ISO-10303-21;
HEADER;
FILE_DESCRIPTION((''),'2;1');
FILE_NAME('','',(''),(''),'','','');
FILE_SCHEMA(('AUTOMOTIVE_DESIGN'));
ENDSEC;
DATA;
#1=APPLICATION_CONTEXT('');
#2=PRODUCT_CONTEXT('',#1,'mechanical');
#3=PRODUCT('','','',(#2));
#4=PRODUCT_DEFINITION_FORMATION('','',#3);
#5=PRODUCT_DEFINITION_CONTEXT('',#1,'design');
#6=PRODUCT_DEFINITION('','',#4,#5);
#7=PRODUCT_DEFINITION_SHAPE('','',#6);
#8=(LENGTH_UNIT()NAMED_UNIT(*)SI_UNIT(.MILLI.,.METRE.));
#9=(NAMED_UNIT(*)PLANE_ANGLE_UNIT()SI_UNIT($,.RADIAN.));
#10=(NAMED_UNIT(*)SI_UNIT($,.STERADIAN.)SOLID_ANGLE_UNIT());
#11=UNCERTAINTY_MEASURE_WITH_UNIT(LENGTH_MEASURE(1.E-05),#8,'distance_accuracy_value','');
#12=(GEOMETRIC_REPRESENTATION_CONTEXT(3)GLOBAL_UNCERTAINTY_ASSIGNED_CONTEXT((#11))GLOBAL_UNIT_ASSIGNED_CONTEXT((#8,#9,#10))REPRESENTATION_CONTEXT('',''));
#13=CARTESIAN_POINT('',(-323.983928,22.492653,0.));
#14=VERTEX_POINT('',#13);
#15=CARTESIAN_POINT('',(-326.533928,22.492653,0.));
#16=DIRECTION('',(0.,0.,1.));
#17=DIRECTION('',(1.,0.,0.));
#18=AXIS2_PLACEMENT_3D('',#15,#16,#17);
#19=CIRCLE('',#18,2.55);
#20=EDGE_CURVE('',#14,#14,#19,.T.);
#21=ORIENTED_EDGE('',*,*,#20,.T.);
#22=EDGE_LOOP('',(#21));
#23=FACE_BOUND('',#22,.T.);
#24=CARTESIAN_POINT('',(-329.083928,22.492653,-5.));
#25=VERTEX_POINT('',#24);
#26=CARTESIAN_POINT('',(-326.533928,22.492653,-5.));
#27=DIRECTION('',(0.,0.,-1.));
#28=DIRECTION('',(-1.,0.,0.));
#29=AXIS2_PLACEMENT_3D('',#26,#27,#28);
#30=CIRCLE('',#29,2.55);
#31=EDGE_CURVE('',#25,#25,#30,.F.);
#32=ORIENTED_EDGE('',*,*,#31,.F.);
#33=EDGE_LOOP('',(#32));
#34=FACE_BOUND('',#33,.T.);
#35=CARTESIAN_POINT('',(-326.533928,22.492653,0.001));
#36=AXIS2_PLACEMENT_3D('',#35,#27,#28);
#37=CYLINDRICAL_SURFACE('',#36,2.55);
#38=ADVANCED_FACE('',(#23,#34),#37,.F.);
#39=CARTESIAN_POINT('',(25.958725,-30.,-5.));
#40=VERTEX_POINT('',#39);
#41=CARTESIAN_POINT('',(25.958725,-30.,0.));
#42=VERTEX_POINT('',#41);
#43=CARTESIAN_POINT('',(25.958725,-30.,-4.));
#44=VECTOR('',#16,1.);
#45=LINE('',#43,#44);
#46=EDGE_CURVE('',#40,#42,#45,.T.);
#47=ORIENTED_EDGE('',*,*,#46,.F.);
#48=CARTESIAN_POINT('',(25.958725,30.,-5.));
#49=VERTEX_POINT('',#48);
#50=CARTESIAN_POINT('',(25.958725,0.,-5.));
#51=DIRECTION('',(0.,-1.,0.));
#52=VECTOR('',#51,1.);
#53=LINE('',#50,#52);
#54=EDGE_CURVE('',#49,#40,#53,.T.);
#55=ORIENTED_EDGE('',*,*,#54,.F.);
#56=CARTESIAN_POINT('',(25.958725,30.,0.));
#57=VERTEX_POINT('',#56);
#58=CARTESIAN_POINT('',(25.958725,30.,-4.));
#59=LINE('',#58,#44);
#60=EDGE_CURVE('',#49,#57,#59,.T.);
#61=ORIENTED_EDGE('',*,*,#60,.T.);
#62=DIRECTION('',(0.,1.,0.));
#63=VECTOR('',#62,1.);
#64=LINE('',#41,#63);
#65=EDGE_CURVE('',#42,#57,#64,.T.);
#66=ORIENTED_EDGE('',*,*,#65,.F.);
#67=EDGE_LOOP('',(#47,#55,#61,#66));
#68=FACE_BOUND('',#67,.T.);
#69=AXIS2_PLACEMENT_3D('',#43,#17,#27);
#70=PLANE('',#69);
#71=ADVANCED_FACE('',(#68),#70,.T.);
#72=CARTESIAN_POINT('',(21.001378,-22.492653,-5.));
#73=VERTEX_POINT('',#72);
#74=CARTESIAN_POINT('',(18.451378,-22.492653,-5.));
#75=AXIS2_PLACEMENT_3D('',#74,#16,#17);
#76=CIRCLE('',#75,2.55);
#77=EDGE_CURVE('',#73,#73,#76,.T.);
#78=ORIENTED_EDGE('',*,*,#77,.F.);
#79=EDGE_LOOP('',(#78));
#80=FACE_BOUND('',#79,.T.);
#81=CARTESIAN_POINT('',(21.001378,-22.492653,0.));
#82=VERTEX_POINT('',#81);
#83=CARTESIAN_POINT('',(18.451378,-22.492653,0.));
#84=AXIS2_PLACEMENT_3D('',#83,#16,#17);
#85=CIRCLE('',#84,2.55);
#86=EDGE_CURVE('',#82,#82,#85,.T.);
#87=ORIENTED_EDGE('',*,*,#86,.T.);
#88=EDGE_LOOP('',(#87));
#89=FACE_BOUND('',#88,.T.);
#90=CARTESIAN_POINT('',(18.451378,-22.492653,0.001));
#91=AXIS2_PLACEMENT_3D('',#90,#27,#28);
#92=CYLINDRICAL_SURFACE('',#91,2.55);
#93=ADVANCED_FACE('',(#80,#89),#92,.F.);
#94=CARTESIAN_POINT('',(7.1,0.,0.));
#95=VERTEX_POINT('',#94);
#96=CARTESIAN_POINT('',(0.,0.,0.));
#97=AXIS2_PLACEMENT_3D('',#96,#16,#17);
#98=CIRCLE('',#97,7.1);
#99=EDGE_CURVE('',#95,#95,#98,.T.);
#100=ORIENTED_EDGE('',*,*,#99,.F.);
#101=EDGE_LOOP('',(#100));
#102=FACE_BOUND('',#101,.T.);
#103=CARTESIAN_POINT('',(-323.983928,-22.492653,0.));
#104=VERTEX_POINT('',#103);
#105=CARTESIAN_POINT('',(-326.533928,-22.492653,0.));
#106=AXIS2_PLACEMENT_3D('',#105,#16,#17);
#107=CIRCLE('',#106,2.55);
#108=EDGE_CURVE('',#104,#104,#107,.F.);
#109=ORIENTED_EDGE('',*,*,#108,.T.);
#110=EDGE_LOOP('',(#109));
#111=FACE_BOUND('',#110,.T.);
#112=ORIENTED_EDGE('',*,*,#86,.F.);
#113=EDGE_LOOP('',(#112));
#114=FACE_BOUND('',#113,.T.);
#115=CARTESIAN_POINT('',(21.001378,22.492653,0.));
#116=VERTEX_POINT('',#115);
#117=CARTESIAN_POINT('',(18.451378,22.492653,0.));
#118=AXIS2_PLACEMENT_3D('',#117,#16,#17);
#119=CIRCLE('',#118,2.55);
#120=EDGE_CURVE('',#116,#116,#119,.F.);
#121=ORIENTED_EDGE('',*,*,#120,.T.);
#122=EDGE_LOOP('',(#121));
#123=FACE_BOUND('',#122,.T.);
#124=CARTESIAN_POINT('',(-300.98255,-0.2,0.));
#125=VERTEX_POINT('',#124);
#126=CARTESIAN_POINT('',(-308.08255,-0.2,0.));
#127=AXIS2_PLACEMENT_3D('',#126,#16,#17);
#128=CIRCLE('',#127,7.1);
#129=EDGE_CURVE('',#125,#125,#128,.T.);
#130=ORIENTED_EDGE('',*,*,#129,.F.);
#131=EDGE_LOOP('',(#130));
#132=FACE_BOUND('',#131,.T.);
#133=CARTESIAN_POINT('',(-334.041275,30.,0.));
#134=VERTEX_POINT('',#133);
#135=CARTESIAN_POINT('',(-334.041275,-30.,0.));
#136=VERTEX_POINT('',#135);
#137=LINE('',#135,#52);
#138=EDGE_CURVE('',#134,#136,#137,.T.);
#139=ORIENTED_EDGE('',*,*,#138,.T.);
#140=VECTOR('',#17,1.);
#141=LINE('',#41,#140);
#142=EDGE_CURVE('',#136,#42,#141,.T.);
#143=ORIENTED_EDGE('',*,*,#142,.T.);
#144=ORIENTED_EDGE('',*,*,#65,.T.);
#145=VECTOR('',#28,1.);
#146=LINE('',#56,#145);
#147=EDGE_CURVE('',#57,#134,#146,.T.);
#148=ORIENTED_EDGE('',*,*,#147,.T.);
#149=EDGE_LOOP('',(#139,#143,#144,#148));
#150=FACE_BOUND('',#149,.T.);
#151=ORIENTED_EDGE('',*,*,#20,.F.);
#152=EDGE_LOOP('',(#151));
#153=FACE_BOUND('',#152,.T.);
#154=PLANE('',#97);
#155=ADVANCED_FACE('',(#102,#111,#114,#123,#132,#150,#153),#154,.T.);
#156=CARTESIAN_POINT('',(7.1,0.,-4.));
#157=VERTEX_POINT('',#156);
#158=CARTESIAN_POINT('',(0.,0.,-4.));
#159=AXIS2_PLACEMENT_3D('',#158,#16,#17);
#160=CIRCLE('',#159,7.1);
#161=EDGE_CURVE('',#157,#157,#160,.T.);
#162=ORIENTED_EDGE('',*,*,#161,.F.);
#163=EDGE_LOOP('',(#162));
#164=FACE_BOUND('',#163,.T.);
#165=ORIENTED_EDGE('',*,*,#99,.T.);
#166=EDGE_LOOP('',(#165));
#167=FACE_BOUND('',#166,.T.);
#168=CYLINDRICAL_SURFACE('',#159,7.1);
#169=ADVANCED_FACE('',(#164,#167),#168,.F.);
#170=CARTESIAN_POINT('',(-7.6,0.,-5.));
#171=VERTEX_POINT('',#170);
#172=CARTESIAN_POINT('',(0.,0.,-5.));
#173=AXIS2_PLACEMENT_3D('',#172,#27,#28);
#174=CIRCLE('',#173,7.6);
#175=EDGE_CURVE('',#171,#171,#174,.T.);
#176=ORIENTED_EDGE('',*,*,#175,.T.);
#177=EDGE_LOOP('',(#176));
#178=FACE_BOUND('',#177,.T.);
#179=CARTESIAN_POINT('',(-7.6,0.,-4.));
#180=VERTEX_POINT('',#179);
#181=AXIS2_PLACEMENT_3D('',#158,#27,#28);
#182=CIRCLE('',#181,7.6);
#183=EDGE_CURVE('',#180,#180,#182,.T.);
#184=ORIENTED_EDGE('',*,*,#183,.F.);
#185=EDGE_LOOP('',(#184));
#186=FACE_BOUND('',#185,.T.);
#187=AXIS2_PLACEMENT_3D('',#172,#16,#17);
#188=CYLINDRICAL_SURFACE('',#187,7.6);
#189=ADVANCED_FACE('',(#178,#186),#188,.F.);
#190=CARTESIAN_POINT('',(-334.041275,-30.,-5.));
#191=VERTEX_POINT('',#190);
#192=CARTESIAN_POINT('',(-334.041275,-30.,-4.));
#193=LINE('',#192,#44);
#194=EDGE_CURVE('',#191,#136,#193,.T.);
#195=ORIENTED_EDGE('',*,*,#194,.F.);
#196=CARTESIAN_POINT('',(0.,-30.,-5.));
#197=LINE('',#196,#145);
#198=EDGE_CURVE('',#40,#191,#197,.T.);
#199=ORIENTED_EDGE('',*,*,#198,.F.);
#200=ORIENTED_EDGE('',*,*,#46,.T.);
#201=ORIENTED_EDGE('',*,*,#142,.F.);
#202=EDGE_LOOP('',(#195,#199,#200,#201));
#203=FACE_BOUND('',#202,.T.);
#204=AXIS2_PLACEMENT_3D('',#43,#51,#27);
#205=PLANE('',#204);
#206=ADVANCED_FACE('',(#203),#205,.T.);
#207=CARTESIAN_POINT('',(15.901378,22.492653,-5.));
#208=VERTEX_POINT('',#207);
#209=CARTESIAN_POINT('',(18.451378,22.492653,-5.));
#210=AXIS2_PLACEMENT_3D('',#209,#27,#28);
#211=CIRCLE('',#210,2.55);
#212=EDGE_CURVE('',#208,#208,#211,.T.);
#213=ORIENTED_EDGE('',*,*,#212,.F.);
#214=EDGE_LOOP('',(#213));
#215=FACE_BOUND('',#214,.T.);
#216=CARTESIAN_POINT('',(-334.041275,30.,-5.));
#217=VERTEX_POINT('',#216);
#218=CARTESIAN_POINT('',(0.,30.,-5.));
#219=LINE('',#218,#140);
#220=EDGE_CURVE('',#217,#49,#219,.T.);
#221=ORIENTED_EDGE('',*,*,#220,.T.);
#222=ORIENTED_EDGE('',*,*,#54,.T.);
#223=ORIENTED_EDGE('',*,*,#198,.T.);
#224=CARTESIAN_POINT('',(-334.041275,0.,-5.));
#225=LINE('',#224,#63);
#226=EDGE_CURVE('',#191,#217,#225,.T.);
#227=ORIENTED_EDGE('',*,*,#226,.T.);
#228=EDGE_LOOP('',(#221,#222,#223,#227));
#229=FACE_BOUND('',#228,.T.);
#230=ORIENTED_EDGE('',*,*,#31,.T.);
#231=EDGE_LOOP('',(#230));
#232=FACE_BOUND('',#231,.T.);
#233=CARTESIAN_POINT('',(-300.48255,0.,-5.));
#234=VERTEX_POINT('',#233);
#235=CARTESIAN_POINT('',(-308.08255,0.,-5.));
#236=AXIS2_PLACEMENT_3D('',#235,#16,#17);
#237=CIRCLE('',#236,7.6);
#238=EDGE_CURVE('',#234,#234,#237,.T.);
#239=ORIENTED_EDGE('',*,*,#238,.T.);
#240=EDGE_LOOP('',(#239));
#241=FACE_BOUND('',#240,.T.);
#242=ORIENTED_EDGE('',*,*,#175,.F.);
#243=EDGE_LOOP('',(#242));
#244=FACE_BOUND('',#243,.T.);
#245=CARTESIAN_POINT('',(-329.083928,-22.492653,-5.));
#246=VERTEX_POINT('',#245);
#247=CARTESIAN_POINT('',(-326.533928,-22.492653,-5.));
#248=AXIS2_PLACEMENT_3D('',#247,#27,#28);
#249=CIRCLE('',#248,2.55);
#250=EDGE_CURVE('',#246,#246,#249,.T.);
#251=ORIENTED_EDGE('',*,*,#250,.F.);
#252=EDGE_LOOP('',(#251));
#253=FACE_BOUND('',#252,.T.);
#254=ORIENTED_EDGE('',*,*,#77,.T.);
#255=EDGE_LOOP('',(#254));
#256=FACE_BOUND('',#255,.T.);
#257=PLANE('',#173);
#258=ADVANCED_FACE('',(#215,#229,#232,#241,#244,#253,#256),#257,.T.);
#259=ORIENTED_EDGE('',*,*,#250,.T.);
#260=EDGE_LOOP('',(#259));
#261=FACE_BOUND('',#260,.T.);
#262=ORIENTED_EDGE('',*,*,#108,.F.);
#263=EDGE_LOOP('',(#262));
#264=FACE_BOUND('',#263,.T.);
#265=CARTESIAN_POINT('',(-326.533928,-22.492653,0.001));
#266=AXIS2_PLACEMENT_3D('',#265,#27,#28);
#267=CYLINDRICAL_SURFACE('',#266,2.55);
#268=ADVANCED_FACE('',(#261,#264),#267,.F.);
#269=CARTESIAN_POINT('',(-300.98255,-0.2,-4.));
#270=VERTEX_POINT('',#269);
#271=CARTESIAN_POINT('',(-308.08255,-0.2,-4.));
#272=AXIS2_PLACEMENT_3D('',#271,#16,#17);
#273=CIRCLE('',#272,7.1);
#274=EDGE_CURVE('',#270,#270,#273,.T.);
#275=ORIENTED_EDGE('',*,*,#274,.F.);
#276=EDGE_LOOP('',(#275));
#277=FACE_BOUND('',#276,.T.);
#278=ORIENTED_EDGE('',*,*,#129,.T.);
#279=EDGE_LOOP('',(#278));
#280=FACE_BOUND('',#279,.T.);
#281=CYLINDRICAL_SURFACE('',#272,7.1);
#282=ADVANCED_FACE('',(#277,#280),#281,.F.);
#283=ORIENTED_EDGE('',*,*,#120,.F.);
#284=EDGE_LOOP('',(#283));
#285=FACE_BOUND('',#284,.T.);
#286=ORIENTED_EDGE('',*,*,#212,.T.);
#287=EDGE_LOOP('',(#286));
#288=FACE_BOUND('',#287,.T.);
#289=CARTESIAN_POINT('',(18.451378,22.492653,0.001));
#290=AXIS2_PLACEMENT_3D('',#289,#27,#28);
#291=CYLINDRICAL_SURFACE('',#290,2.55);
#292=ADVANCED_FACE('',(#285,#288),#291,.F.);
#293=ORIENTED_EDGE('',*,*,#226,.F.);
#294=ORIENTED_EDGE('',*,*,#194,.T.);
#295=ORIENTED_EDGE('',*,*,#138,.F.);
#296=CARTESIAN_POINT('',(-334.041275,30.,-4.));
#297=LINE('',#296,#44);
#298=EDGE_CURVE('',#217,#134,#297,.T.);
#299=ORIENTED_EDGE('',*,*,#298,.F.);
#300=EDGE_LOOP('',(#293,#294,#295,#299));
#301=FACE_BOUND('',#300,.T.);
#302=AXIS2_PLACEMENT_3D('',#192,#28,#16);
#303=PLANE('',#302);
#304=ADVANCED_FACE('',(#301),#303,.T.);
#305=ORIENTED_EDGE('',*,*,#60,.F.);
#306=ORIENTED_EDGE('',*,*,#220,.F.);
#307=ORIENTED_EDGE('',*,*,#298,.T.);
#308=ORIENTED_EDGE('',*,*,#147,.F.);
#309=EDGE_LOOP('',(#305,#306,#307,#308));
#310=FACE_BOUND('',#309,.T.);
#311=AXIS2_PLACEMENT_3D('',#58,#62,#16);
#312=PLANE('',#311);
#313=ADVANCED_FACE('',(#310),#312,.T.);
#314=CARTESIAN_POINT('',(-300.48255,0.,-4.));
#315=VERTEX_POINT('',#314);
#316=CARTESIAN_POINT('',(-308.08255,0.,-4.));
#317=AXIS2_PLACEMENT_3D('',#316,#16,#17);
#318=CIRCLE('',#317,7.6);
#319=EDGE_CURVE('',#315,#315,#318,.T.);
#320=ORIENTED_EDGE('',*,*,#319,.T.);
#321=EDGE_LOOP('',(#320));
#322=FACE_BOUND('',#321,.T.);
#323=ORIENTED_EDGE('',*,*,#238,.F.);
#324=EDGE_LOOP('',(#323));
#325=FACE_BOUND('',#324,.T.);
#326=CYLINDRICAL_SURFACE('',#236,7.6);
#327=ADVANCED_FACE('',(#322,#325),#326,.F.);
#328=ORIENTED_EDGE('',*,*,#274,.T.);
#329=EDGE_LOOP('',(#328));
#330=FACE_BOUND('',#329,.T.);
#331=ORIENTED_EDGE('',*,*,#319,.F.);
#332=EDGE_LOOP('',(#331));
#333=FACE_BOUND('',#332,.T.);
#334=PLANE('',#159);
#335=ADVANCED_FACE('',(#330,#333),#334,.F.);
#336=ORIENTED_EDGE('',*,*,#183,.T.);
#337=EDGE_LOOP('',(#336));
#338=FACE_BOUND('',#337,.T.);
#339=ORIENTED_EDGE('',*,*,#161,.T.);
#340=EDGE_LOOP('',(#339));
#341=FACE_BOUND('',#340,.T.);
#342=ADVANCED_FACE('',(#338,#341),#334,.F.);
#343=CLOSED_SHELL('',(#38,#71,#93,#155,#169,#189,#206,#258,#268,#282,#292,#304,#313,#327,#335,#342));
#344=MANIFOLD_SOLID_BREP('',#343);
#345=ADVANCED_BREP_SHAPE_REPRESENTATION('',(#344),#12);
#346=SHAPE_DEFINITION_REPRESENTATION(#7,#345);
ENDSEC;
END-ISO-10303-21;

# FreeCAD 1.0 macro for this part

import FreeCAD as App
import Part
import Sketcher

V = App.Vector
Q = App.Units.Quantity

doc = App.newDocument("Part")
params = doc.addObject("Spreadsheet::Sheet", "Params")
for row, (alias, value) in enumerate([
    ("sketch1_diameter", "14.2 mm"),
    ("sketch1_width", "360 mm"),
    ("sketch1_height", "60 mm"),
    ("pad1_length", "4 mm"),
    ("sketch2_diameter", "15.2 mm"),
    ("sketch2_width", "360 mm"),
    ("sketch2_height", "60 mm"),
    ("pad2_length", "1 mm"),
    ("sketch3_diameter", "5.1 mm"),
    ("sketch4_diameter", "5.1 mm"),
    ("sketch5_diameter", "5.1 mm"),
    ("sketch6_diameter", "5.1 mm"),
], start=1):
    params.set(f"A{row}", alias)
    params.set(f"B{row}", "=" + value)
    params.setAlias(f"B{row}", alias)

body = doc.addObject("PartDesign::Body", "Body")

# Sketch on XY plane
sketch1 = doc.addObject("Sketcher::SketchObject", "Sketch")
body.addObject(sketch1)
sketch1.AttachmentSupport = (doc.XY_Plane, [""])
sketch1.MapMode = "FlatFace"
sketch1.addGeometry([
    Part.LineSegment(V(-334, 30, 0), V(-334, -30, 0)),  # 0
    Part.LineSegment(V(-334, -30, 0), V(26, -30, 0)),  # 1
    Part.LineSegment(V(26, -30, 0), V(26, 30, 0)),  # 2
    Part.LineSegment(V(26, 30, 0), V(-334, 30, 0)),  # 3
    Part.Circle(V(-308, 0, 0), V(0, 0, 1), 7),  # 4
    Part.Circle(V(0, 0, 0), V(0, 0, 1), 7),  # 5
], False)
sketch1.addConstraint([
    Sketcher.Constraint("Coincident", 0, 2, 1, 1),
    Sketcher.Constraint("Coincident", 1, 2, 2, 1),
    Sketcher.Constraint("Coincident", 2, 2, 3, 1),
    Sketcher.Constraint("Coincident", 3, 2, 0, 1),
    Sketcher.Constraint("Vertical", 0),
    Sketcher.Constraint("Horizontal", 1),
    Sketcher.Constraint("Vertical", 2),
    Sketcher.Constraint("Horizontal", 3),
    Sketcher.Constraint("Coincident", 5, 3, -1, 1),
    Sketcher.Constraint("Equal", 4, 5),
    Sketcher.Constraint("Diameter", 4, Q("14.2 mm")),
    Sketcher.Constraint("DistanceX", 1, 1, 1, 2, Q("360 mm")),
    Sketcher.Constraint("DistanceY", 0, 2, 0, 1, Q("60 mm")),
    Sketcher.Constraint("DistanceY", 0, 2, -1, 1, Q("30 mm")),
    Sketcher.Constraint("DistanceY", 4, 3, -1, 1, Q("0.2 mm")),
    Sketcher.Constraint("DistanceX", 4, 3, -1, 1, Q("308.08255 mm")),
    Sketcher.Constraint("DistanceX", 0, 2, -1, 1, Q("334.041275 mm")),
])
sketch1.setExpression("Constraints[10]", "Params.sketch1_diameter")
sketch1.setExpression("Constraints[11]", "Params.sketch1_width")
sketch1.setExpression("Constraints[12]", "Params.sketch1_height")
pad1 = doc.addObject("PartDesign::Pad", "Pad")
body.addObject(pad1)
pad1.Profile = sketch1
pad1.setExpression("Length", "Params.pad1_length")
pad1.Reversed = True

# Sketch on XY plane
sketch2 = doc.addObject("Sketcher::SketchObject", "Sketch001")
body.addObject(sketch2)
sketch2.AttachmentSupport = (doc.XY_Plane, [""])
sketch2.MapMode = "FlatFace"
sketch2.AttachmentOffset = App.Placement(V(0, 0, -4), App.Rotation())
sketch2.addGeometry([
    Part.LineSegment(V(26, 30, 0), V(26, -30, 0)),  # 0
    Part.LineSegment(V(26, -30, 0), V(-334, -30, 0)),  # 1
    Part.LineSegment(V(-334, -30, 0), V(-334, 30, 0)),  # 2
    Part.LineSegment(V(-334, 30, 0), V(26, 30, 0)),  # 3
    Part.Circle(V(0, 0, 0), V(0, 0, 1), 8),  # 4
    Part.Circle(V(-308, 0, 0), V(0, 0, 1), 8),  # 5
], False)
sketch2.addConstraint([
    Sketcher.Constraint("Coincident", 0, 2, 1, 1),
    Sketcher.Constraint("Coincident", 1, 2, 2, 1),
    Sketcher.Constraint("Coincident", 2, 2, 3, 1),
    Sketcher.Constraint("Coincident", 3, 2, 0, 1),
    Sketcher.Constraint("Vertical", 0),
    Sketcher.Constraint("Horizontal", 1),
    Sketcher.Constraint("Vertical", 2),
    Sketcher.Constraint("Horizontal", 3),
    Sketcher.Constraint("Coincident", 4, 3, -1, 1),
    Sketcher.Constraint("Equal", 4, 5),
    Sketcher.Constraint("PointOnObject", 5, 3, -1),
    Sketcher.Constraint("Diameter", 4, Q("15.2 mm")),
    Sketcher.Constraint("DistanceX", 1, 2, 1, 1, Q("360 mm")),
    Sketcher.Constraint("DistanceY", 0, 2, 0, 1, Q("60 mm")),
    Sketcher.Constraint("DistanceY", 0, 2, -1, 1, Q("30 mm")),
    Sketcher.Constraint("DistanceX", 5, 3, -1, 1, Q("308.08255 mm")),
    Sketcher.Constraint("DistanceX", -1, 1, 0, 2, Q("25.958725 mm")),
])
sketch2.setExpression("Constraints[11]", "Params.sketch2_diameter")
sketch2.setExpression("Constraints[12]", "Params.sketch2_width")
sketch2.setExpression("Constraints[13]", "Params.sketch2_height")
pad2 = doc.addObject("PartDesign::Pad", "Pad001")
body.addObject(pad2)
pad2.Profile = sketch2
pad2.setExpression("Length", "Params.pad2_length")
pad2.Reversed = True

# Sketch on XY plane
sketch3 = doc.addObject("Sketcher::SketchObject", "Sketch002")
body.addObject(sketch3)
sketch3.AttachmentSupport = (doc.XY_Plane, [""])
sketch3.MapMode = "FlatFace"
sketch3.AttachmentOffset = App.Placement(V(0, 0, -5), App.Rotation())
sketch3.addGeometry(Part.Circle(V(-326.5, -22.5, 0), V(0, 0, 1), 2.5), False)
sketch3.addConstraint([
    Sketcher.Constraint("Diameter", 0, Q("5.1 mm")),
    Sketcher.Constraint("DistanceX", 0, 3, -1, 1, Q("326.533928 mm")),
    Sketcher.Constraint("DistanceY", 0, 3, -1, 1, Q("22.492653 mm")),
])
sketch3.setExpression("Constraints[0]", "Params.sketch3_diameter")
pocket1 = doc.addObject("PartDesign::Pocket", "Pocket")
body.addObject(pocket1)
pocket1.Profile = sketch3
pocket1.Type = "UpToFirst"
pocket1.Reversed = True

# Sketch on XY plane
sketch4 = doc.addObject("Sketcher::SketchObject", "Sketch003")
body.addObject(sketch4)
sketch4.AttachmentSupport = (doc.XY_Plane, [""])
sketch4.MapMode = "FlatFace"
sketch4.AttachmentOffset = App.Placement(V(0, 0, -5), App.Rotation())
sketch4.addGeometry(Part.Circle(V(-326.5, 22.5, 0), V(0, 0, 1), 2.5), False)
sketch4.addConstraint([
    Sketcher.Constraint("Diameter", 0, Q("5.1 mm")),
    Sketcher.Constraint("DistanceX", 0, 3, -1, 1, Q("326.533928 mm")),
    Sketcher.Constraint("DistanceY", -1, 1, 0, 3, Q("22.492653 mm")),
])
sketch4.setExpression("Constraints[0]", "Params.sketch4_diameter")
pocket2 = doc.addObject("PartDesign::Pocket", "Pocket001")
body.addObject(pocket2)
pocket2.Profile = sketch4
pocket2.Type = "UpToFirst"
pocket2.Reversed = True

# Sketch on XY plane
sketch5 = doc.addObject("Sketcher::SketchObject", "Sketch004")
body.addObject(sketch5)
sketch5.AttachmentSupport = (doc.XY_Plane, [""])
sketch5.MapMode = "FlatFace"
sketch5.AttachmentOffset = App.Placement(V(0, 0, -5), App.Rotation())
sketch5.addGeometry(Part.Circle(V(18.5, -22.5, 0), V(0, 0, 1), 2.5), False)
sketch5.addConstraint([
    Sketcher.Constraint("Diameter", 0, Q("5.1 mm")),
    Sketcher.Constraint("DistanceX", -1, 1, 0, 3, Q("18.451378 mm")),
    Sketcher.Constraint("DistanceY", 0, 3, -1, 1, Q("22.492653 mm")),
])
sketch5.setExpression("Constraints[0]", "Params.sketch5_diameter")
pocket3 = doc.addObject("PartDesign::Pocket", "Pocket002")
body.addObject(pocket3)
pocket3.Profile = sketch5
pocket3.Type = "UpToFirst"
pocket3.Reversed = True

# Sketch on XY plane
sketch6 = doc.addObject("Sketcher::SketchObject", "Sketch005")
body.addObject(sketch6)
sketch6.AttachmentSupport = (doc.XY_Plane, [""])
sketch6.MapMode = "FlatFace"
sketch6.AttachmentOffset = App.Placement(V(0, 0, -5), App.Rotation())
sketch6.addGeometry(Part.Circle(V(18.5, 22.5, 0), V(0, 0, 1), 2.5), False)
sketch6.addConstraint([
    Sketcher.Constraint("Diameter", 0, Q("5.1 mm")),
    Sketcher.Constraint("DistanceX", -1, 1, 0, 3, Q("18.451378 mm")),
    Sketcher.Constraint("DistanceY", -1, 1, 0, 3, Q("22.492653 mm")),
])
sketch6.setExpression("Constraints[0]", "Params.sketch6_diameter")
pocket4 = doc.addObject("PartDesign::Pocket", "Pocket003")
body.addObject(pocket4)
pocket4.Profile = sketch6
pocket4.Type = "UpToFirst"
pocket4.Reversed = True

doc.recompute()
